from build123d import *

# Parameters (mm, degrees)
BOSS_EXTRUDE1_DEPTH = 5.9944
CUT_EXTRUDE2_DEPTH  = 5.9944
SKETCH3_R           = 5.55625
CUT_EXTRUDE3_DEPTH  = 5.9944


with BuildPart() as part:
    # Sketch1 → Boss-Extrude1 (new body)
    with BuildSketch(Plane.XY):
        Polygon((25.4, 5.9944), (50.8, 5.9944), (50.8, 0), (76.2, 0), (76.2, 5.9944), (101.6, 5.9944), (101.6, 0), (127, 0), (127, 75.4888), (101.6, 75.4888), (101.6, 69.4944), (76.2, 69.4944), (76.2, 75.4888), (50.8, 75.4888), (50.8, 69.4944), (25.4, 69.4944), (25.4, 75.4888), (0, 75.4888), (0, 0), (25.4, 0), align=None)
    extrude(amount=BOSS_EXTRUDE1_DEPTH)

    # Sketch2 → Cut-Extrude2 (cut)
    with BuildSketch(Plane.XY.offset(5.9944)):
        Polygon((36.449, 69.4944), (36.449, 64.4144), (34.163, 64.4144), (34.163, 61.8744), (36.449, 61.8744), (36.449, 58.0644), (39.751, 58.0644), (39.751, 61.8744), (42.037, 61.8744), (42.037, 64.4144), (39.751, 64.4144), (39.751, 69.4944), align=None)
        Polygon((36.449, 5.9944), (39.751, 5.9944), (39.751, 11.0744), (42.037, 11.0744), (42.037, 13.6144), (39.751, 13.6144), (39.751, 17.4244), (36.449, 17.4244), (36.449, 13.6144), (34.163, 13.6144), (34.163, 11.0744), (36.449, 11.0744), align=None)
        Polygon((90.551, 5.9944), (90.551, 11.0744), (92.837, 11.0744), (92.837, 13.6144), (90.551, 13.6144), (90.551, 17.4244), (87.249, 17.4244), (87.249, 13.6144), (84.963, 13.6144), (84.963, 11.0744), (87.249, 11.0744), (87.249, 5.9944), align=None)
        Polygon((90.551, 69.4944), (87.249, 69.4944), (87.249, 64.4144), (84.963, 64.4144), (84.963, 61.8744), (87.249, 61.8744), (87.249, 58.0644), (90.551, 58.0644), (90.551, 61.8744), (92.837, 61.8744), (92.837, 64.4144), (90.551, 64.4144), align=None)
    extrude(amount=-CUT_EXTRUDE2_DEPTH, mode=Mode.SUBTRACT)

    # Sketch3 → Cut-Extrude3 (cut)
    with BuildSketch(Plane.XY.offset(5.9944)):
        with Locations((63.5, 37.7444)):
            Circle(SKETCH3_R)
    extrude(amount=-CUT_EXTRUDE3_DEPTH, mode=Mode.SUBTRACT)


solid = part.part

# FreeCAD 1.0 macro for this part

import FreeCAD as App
import Part
import Sketcher

V = App.Vector
Q = App.Units.Quantity

doc = App.newDocument("Part")
params = doc.addObject("Spreadsheet::Sheet", "Params")
for row, (alias, value) in enumerate([
    ("sketch1_width", "1 in"),
    ("sketch1_height", "0.236 in"),
    ("pad1_length", "0.236 in"),
    ("sketch2_height", "0.2 in"),
    ("sketch2_height2", "0.1 in"),
    ("sketch2_width", "0.09 in"),
    ("sketch2_width2", "0.13 in"),
    ("sketch2_height3", "0.15 in"),
    ("pocket1_length", "0.236 in"),
    ("sketch3_diameter", "0.4375 in"),
    ("pocket2_length", "0.236 in"),
], start=1):
    params.set(f"A{row}", alias)
    params.set(f"B{row}", "=" + value)
    params.setAlias(f"B{row}", alias)

body = doc.addObject("PartDesign::Body", "Body")

sketch1 = doc.addObject("Sketcher::SketchObject", "Sketch")
body.addObject(sketch1)
sketch1.AttachmentSupport = (doc.XY_Plane, [""])
sketch1.MapMode = "FlatFace"
sketch1.addGeometry(Part.LineSegment(V(25, 6, 0), V(51, 6, 0)), False)
sketch1.addGeometry(Part.LineSegment(V(51, 6, 0), V(51, 0, 0)), False)
sketch1.addGeometry(Part.LineSegment(V(51, 0, 0), V(76, 0, 0)), False)
sketch1.addGeometry(Part.LineSegment(V(76, 0, 0), V(76, 6, 0)), False)
sketch1.addGeometry(Part.LineSegment(V(76, 6, 0), V(102, 6, 0)), False)
sketch1.addGeometry(Part.LineSegment(V(102, 6, 0), V(102, 0, 0)), False)
sketch1.addGeometry(Part.LineSegment(V(102, 0, 0), V(127, 0, 0)), False)
sketch1.addGeometry(Part.LineSegment(V(127, 0, 0), V(127, 75, 0)), False)
sketch1.addGeometry(Part.LineSegment(V(127, 75, 0), V(102, 75, 0)), False)
sketch1.addGeometry(Part.LineSegment(V(102, 75, 0), V(102, 69, 0)), False)
sketch1.addGeometry(Part.LineSegment(V(102, 69, 0), V(76, 69, 0)), False)
sketch1.addGeometry(Part.LineSegment(V(76, 69, 0), V(76, 75, 0)), False)
sketch1.addGeometry(Part.LineSegment(V(76, 75, 0), V(51, 75, 0)), False)
sketch1.addGeometry(Part.LineSegment(V(51, 75, 0), V(51, 69, 0)), False)
sketch1.addGeometry(Part.LineSegment(V(51, 69, 0), V(25, 69, 0)), False)
sketch1.addGeometry(Part.LineSegment(V(25, 69, 0), V(25, 75, 0)), False)
sketch1.addGeometry(Part.LineSegment(V(25, 75, 0), V(0, 75, 0)), False)
sketch1.addGeometry(Part.LineSegment(V(0, 75, 0), V(0, 0, 0)), False)
sketch1.addGeometry(Part.LineSegment(V(0, 0, 0), V(25, 0, 0)), False)
sketch1.addGeometry(Part.LineSegment(V(25, 0, 0), V(25, 6, 0)), False)
sketch1.addConstraint(Sketcher.Constraint("Coincident", 0, 2, 1, 1))
sketch1.addConstraint(Sketcher.Constraint("Coincident", 1, 2, 2, 1))
sketch1.addConstraint(Sketcher.Constraint("Coincident", 2, 2, 3, 1))
sketch1.addConstraint(Sketcher.Constraint("Coincident", 3, 2, 4, 1))
sketch1.addConstraint(Sketcher.Constraint("Coincident", 4, 2, 5, 1))
sketch1.addConstraint(Sketcher.Constraint("Coincident", 5, 2, 6, 1))
sketch1.addConstraint(Sketcher.Constraint("Coincident", 6, 2, 7, 1))
sketch1.addConstraint(Sketcher.Constraint("Coincident", 7, 2, 8, 1))
sketch1.addConstraint(Sketcher.Constraint("Coincident", 8, 2, 9, 1))
sketch1.addConstraint(Sketcher.Constraint("Coincident", 9, 2, 10, 1))
sketch1.addConstraint(Sketcher.Constraint("Coincident", 10, 2, 11, 1))
sketch1.addConstraint(Sketcher.Constraint("Coincident", 11, 2, 12, 1))
sketch1.addConstraint(Sketcher.Constraint("Coincident", 12, 2, 13, 1))
sketch1.addConstraint(Sketcher.Constraint("Coincident", 13, 2, 14, 1))
sketch1.addConstraint(Sketcher.Constraint("Coincident", 14, 2, 15, 1))
sketch1.addConstraint(Sketcher.Constraint("Coincident", 15, 2, 16, 1))
sketch1.addConstraint(Sketcher.Constraint("Coincident", 16, 2, 17, 1))
sketch1.addConstraint(Sketcher.Constraint("Coincident", 17, 2, 18, 1))
sketch1.addConstraint(Sketcher.Constraint("Coincident", 18, 2, 19, 1))
sketch1.addConstraint(Sketcher.Constraint("Coincident", 19, 2, 0, 1))
sketch1.addConstraint(Sketcher.Constraint("Horizontal", 0))
sketch1.addConstraint(Sketcher.Constraint("Vertical", 1))
sketch1.addConstraint(Sketcher.Constraint("Horizontal", 2))
sketch1.addConstraint(Sketcher.Constraint("Vertical", 3))
sketch1.addConstraint(Sketcher.Constraint("Horizontal", 4))
sketch1.addConstraint(Sketcher.Constraint("Vertical", 5))
sketch1.addConstraint(Sketcher.Constraint("Horizontal", 6))
sketch1.addConstraint(Sketcher.Constraint("Vertical", 7))
sketch1.addConstraint(Sketcher.Constraint("Horizontal", 8))
sketch1.addConstraint(Sketcher.Constraint("Vertical", 9))
sketch1.addConstraint(Sketcher.Constraint("Horizontal", 10))
sketch1.addConstraint(Sketcher.Constraint("Vertical", 11))
sketch1.addConstraint(Sketcher.Constraint("Horizontal", 12))
sketch1.addConstraint(Sketcher.Constraint("Vertical", 13))
sketch1.addConstraint(Sketcher.Constraint("Horizontal", 14))
sketch1.addConstraint(Sketcher.Constraint("Vertical", 15))
sketch1.addConstraint(Sketcher.Constraint("Horizontal", 16))
sketch1.addConstraint(Sketcher.Constraint("Vertical", 17))
sketch1.addConstraint(Sketcher.Constraint("Horizontal", 18))
sketch1.addConstraint(Sketcher.Constraint("Vertical", 19))
sketch1.addConstraint(Sketcher.Constraint("Coincident", 17, 2, -1, 1))
sketch1.addConstraint(Sketcher.Constraint("PointOnObject", 1, 2, -1))
sketch1.addConstraint(Sketcher.Constraint("PointOnObject", 5, 2, -1))
sketch1.addConstraint(Sketcher.Constraint("Horizontal", 0, 2, 3, 2))
sketch1.addConstraint(Sketcher.Constraint("Horizontal", 8, 2, 11, 2))
sketch1.addConstraint(Sketcher.Constraint("Horizontal", 10, 2, 13, 2))
sketch1.addConstraint(Sketcher.Constraint("Horizontal", 12, 2, 15, 2))
sketch1.addConstraint(Sketcher.Constraint("Vertical", 5, 2, 8, 2))
sketch1.addConstraint(Sketcher.Constraint("Vertical", 3, 2, 10, 2))
sketch1.addConstraint(Sketcher.Constraint("Vertical", 1, 2, 12, 2))
sketch1.addConstraint(Sketcher.Constraint("Vertical", 15, 2, 18, 2))
sketch1.addConstraint(Sketcher.Constraint("Equal", 0, 2))
sketch1.addConstraint(Sketcher.Constraint("Equal", 2, 4))
sketch1.addConstraint(Sketcher.Constraint("Equal", 4, 6))
sketch1.addConstraint(Sketcher.Constraint("Equal", 14, 16))
sketch1.addConstraint(Sketcher.Constraint("Equal", 5, 9))
sketch1.addConstraint(Sketcher.Constraint("DistanceX", 0, 1, 0, 2, Q("1 in")))
sketch1.addConstraint(Sketcher.Constraint("DistanceY", 4, 2, 9, 2, Q("2.5 in")))
sketch1.addConstraint(Sketcher.Constraint("DistanceY", 1, 2, 1, 1, Q("0.236 in")))
sketch1.setExpression("Constraints[56]", "Params.sketch1_width")
sketch1.setExpression("Constraints[58]", "Params.sketch1_height")
pad1 = doc.addObject("PartDesign::Pad", "Pad")
body.addObject(pad1)
pad1.Profile = sketch1
pad1.setExpression("Length", "Params.pad1_length")

sketch2 = doc.addObject("Sketcher::SketchObject", "Sketch001")
body.addObject(sketch2)
sketch2.AttachmentSupport = (doc.XY_Plane, [""])
sketch2.MapMode = "FlatFace"
sketch2.AttachmentOffset = App.Placement(V(0, 0, 0.236 * 25.4), App.Rotation())
sketch2.addGeometry(Part.LineSegment(V(36.4, 69.5, 0), V(36.4, 64.4, 0)), False)
sketch2.addGeometry(Part.LineSegment(V(36.4, 64.4, 0), V(34.2, 64.4, 0)), False)
sketch2.addGeometry(Part.LineSegment(V(34.2, 64.4, 0), V(34.2, 61.9, 0)), False)
sketch2.addGeometry(Part.LineSegment(V(34.2, 61.9, 0), V(36.4, 61.9, 0)), False)
sketch2.addGeometry(Part.LineSegment(V(36.4, 61.9, 0), V(36.4, 58.1, 0)), False)
sketch2.addGeometry(Part.LineSegment(V(36.4, 58.1, 0), V(39.8, 58.1, 0)), False)
sketch2.addGeometry(Part.LineSegment(V(39.8, 58.1, 0), V(39.8, 61.9, 0)), False)
sketch2.addGeometry(Part.LineSegment(V(39.8, 61.9, 0), V(42, 61.9, 0)), False)
sketch2.addGeometry(Part.LineSegment(V(42, 61.9, 0), V(42, 64.4, 0)), False)
sketch2.addGeometry(Part.LineSegment(V(42, 64.4, 0), V(39.8, 64.4, 0)), False)
sketch2.addGeometry(Part.LineSegment(V(39.8, 64.4, 0), V(39.8, 69.5, 0)), False)
sketch2.addGeometry(Part.LineSegment(V(39.8, 69.5, 0), V(36.4, 69.5, 0)), False)
sketch2.addGeometry(Part.LineSegment(V(36.4, 6, 0), V(39.8, 6, 0)), False)
sketch2.addGeometry(Part.LineSegment(V(39.8, 6, 0), V(39.8, 11.1, 0)), False)
sketch2.addGeometry(Part.LineSegment(V(39.8, 11.1, 0), V(42, 11.1, 0)), False)
sketch2.addGeometry(Part.LineSegment(V(42, 11.1, 0), V(42, 13.6, 0)), False)
sketch2.addGeometry(Part.LineSegment(V(42, 13.6, 0), V(39.8, 13.6, 0)), False)
sketch2.addGeometry(Part.LineSegment(V(39.8, 13.6, 0), V(39.8, 17.4, 0)), False)
sketch2.addGeometry(Part.LineSegment(V(39.8, 17.4, 0), V(36.4, 17.4, 0)), False)
sketch2.addGeometry(Part.LineSegment(V(36.4, 17.4, 0), V(36.4, 13.6, 0)), False)
sketch2.addGeometry(Part.LineSegment(V(36.4, 13.6, 0), V(34.2, 13.6, 0)), False)
sketch2.addGeometry(Part.LineSegment(V(34.2, 13.6, 0), V(34.2, 11.1, 0)), False)
sketch2.addGeometry(Part.LineSegment(V(34.2, 11.1, 0), V(36.4, 11.1, 0)), False)
sketch2.addGeometry(Part.LineSegment(V(36.4, 11.1, 0), V(36.4, 6, 0)), False)
sketch2.addGeometry(Part.LineSegment(V(90.6, 6, 0), V(90.6, 11.1, 0)), False)
sketch2.addGeometry(Part.LineSegment(V(90.6, 11.1, 0), V(92.8, 11.1, 0)), False)
sketch2.addGeometry(Part.LineSegment(V(92.8, 11.1, 0), V(92.8, 13.6, 0)), False)
sketch2.addGeometry(Part.LineSegment(V(92.8, 13.6, 0), V(90.6, 13.6, 0)), False)
sketch2.addGeometry(Part.LineSegment(V(90.6, 13.6, 0), V(90.6, 17.4, 0)), False)
sketch2.addGeometry(Part.LineSegment(V(90.6, 17.4, 0), V(87.2, 17.4, 0)), False)
sketch2.addGeometry(Part.LineSegment(V(87.2, 17.4, 0), V(87.2, 13.6, 0)), False)
sketch2.addGeometry(Part.LineSegment(V(87.2, 13.6, 0), V(85, 13.6, 0)), False)
sketch2.addGeometry(Part.LineSegment(V(85, 13.6, 0), V(85, 11.1, 0)), False)
sketch2.addGeometry(Part.LineSegment(V(85, 11.1, 0), V(87.2, 11.1, 0)), False)
sketch2.addGeometry(Part.LineSegment(V(87.2, 11.1, 0), V(87.2, 6, 0)), False)
sketch2.addGeometry(Part.LineSegment(V(87.2, 6, 0), V(90.6, 6, 0)), False)
sketch2.addGeometry(Part.LineSegment(V(90.6, 69.5, 0), V(87.2, 69.5, 0)), False)
sketch2.addGeometry(Part.LineSegment(V(87.2, 69.5, 0), V(87.2, 64.4, 0)), False)
sketch2.addGeometry(Part.LineSegment(V(87.2, 64.4, 0), V(85, 64.4, 0)), False)
sketch2.addGeometry(Part.LineSegment(V(85, 64.4, 0), V(85, 61.9, 0)), False)
sketch2.addGeometry(Part.LineSegment(V(85, 61.9, 0), V(87.2, 61.9, 0)), False)
sketch2.addGeometry(Part.LineSegment(V(87.2, 61.9, 0), V(87.2, 58.1, 0)), False)
sketch2.addGeometry(Part.LineSegment(V(87.2, 58.1, 0), V(90.6, 58.1, 0)), False)
sketch2.addGeometry(Part.LineSegment(V(90.6, 58.1, 0), V(90.6, 61.9, 0)), False)
sketch2.addGeometry(Part.LineSegment(V(90.6, 61.9, 0), V(92.8, 61.9, 0)), False)
sketch2.addGeometry(Part.LineSegment(V(92.8, 61.9, 0), V(92.8, 64.4, 0)), False)
sketch2.addGeometry(Part.LineSegment(V(92.8, 64.4, 0), V(90.6, 64.4, 0)), False)
sketch2.addGeometry(Part.LineSegment(V(90.6, 64.4, 0), V(90.6, 69.5, 0)), False)
sketch2.addConstraint(Sketcher.Constraint("Coincident", 0, 2, 1, 1))
sketch2.addConstraint(Sketcher.Constraint("Coincident", 1, 2, 2, 1))
sketch2.addConstraint(Sketcher.Constraint("Coincident", 2, 2, 3, 1))
sketch2.addConstraint(Sketcher.Constraint("Coincident", 3, 2, 4, 1))
sketch2.addConstraint(Sketcher.Constraint("Coincident", 4, 2, 5, 1))
sketch2.addConstraint(Sketcher.Constraint("Coincident", 5, 2, 6, 1))
sketch2.addConstraint(Sketcher.Constraint("Coincident", 6, 2, 7, 1))
sketch2.addConstraint(Sketcher.Constraint("Coincident", 7, 2, 8, 1))
sketch2.addConstraint(Sketcher.Constraint("Coincident", 8, 2, 9, 1))
sketch2.addConstraint(Sketcher.Constraint("Coincident", 9, 2, 10, 1))
sketch2.addConstraint(Sketcher.Constraint("Coincident", 10, 2, 11, 1))
sketch2.addConstraint(Sketcher.Constraint("Coincident", 11, 2, 0, 1))
sketch2.addConstraint(Sketcher.Constraint("Coincident", 12, 2, 13, 1))
sketch2.addConstraint(Sketcher.Constraint("Coincident", 13, 2, 14, 1))
sketch2.addConstraint(Sketcher.Constraint("Coincident", 14, 2, 15, 1))
sketch2.addConstraint(Sketcher.Constraint("Coincident", 15, 2, 16, 1))
sketch2.addConstraint(Sketcher.Constraint("Coincident", 16, 2, 17, 1))
sketch2.addConstraint(Sketcher.Constraint("Coincident", 17, 2, 18, 1))
sketch2.addConstraint(Sketcher.Constraint("Coincident", 18, 2, 19, 1))
sketch2.addConstraint(Sketcher.Constraint("Coincident", 19, 2, 20, 1))
sketch2.addConstraint(Sketcher.Constraint("Coincident", 20, 2, 21, 1))
sketch2.addConstraint(Sketcher.Constraint("Coincident", 21, 2, 22, 1))
sketch2.addConstraint(Sketcher.Constraint("Coincident", 22, 2, 23, 1))
sketch2.addConstraint(Sketcher.Constraint("Coincident", 23, 2, 12, 1))
sketch2.addConstraint(Sketcher.Constraint("Coincident", 24, 2, 25, 1))
sketch2.addConstraint(Sketcher.Constraint("Coincident", 25, 2, 26, 1))
sketch2.addConstraint(Sketcher.Constraint("Coincident", 26, 2, 27, 1))
sketch2.addConstraint(Sketcher.Constraint("Coincident", 27, 2, 28, 1))
sketch2.addConstraint(Sketcher.Constraint("Coincident", 28, 2, 29, 1))
sketch2.addConstraint(Sketcher.Constraint("Coincident", 29, 2, 30, 1))
sketch2.addConstraint(Sketcher.Constraint("Coincident", 30, 2, 31, 1))
sketch2.addConstraint(Sketcher.Constraint("Coincident", 31, 2, 32, 1))
sketch2.addConstraint(Sketcher.Constraint("Coincident", 32, 2, 33, 1))
sketch2.addConstraint(Sketcher.Constraint("Coincident", 33, 2, 34, 1))
sketch2.addConstraint(Sketcher.Constraint("Coincident", 34, 2, 35, 1))
sketch2.addConstraint(Sketcher.Constraint("Coincident", 35, 2, 24, 1))
sketch2.addConstraint(Sketcher.Constraint("Coincident", 36, 2, 37, 1))
sketch2.addConstraint(Sketcher.Constraint("Coincident", 37, 2, 38, 1))
sketch2.addConstraint(Sketcher.Constraint("Coincident", 38, 2, 39, 1))
sketch2.addConstraint(Sketcher.Constraint("Coincident", 39, 2, 40, 1))
sketch2.addConstraint(Sketcher.Constraint("Coincident", 40, 2, 41, 1))
sketch2.addConstraint(Sketcher.Constraint("Coincident", 41, 2, 42, 1))
sketch2.addConstraint(Sketcher.Constraint("Coincident", 42, 2, 43, 1))
sketch2.addConstraint(Sketcher.Constraint("Coincident", 43, 2, 44, 1))
sketch2.addConstraint(Sketcher.Constraint("Coincident", 44, 2, 45, 1))
sketch2.addConstraint(Sketcher.Constraint("Coincident", 45, 2, 46, 1))
sketch2.addConstraint(Sketcher.Constraint("Coincident", 46, 2, 47, 1))
sketch2.addConstraint(Sketcher.Constraint("Coincident", 47, 2, 36, 1))
sketch2.addConstraint(Sketcher.Constraint("Vertical", 0))
sketch2.addConstraint(Sketcher.Constraint("Horizontal", 1))
sketch2.addConstraint(Sketcher.Constraint("Vertical", 2))
sketch2.addConstraint(Sketcher.Constraint("Horizontal", 3))
sketch2.addConstraint(Sketcher.Constraint("Vertical", 4))
sketch2.addConstraint(Sketcher.Constraint("Horizontal", 5))
sketch2.addConstraint(Sketcher.Constraint("Vertical", 6))
sketch2.addConstraint(Sketcher.Constraint("Horizontal", 7))
sketch2.addConstraint(Sketcher.Constraint("Vertical", 8))
sketch2.addConstraint(Sketcher.Constraint("Horizontal", 9))
sketch2.addConstraint(Sketcher.Constraint("Vertical", 10))
sketch2.addConstraint(Sketcher.Constraint("Horizontal", 11))
sketch2.addConstraint(Sketcher.Constraint("Horizontal", 12))
sketch2.addConstraint(Sketcher.Constraint("Vertical", 13))
sketch2.addConstraint(Sketcher.Constraint("Horizontal", 14))
sketch2.addConstraint(Sketcher.Constraint("Vertical", 15))
sketch2.addConstraint(Sketcher.Constraint("Horizontal", 16))
sketch2.addConstraint(Sketcher.Constraint("Vertical", 17))
sketch2.addConstraint(Sketcher.Constraint("Horizontal", 18))
sketch2.addConstraint(Sketcher.Constraint("Vertical", 19))
sketch2.addConstraint(Sketcher.Constraint("Horizontal", 20))
sketch2.addConstraint(Sketcher.Constraint("Vertical", 21))
sketch2.addConstraint(Sketcher.Constraint("Horizontal", 22))
sketch2.addConstraint(Sketcher.Constraint("Vertical", 23))
sketch2.addConstraint(Sketcher.Constraint("Vertical", 24))
sketch2.addConstraint(Sketcher.Constraint("Horizontal", 25))
sketch2.addConstraint(Sketcher.Constraint("Vertical", 26))
sketch2.addConstraint(Sketcher.Constraint("Horizontal", 27))
sketch2.addConstraint(Sketcher.Constraint("Vertical", 28))
sketch2.addConstraint(Sketcher.Constraint("Horizontal", 29))
sketch2.addConstraint(Sketcher.Constraint("Vertical", 30))
sketch2.addConstraint(Sketcher.Constraint("Horizontal", 31))
sketch2.addConstraint(Sketcher.Constraint("Vertical", 32))
sketch2.addConstraint(Sketcher.Constraint("Horizontal", 33))
sketch2.addConstraint(Sketcher.Constraint("Vertical", 34))
sketch2.addConstraint(Sketcher.Constraint("Horizontal", 35))
sketch2.addConstraint(Sketcher.Constraint("Horizontal", 36))
sketch2.addConstraint(Sketcher.Constraint("Vertical", 37))
sketch2.addConstraint(Sketcher.Constraint("Horizontal", 38))
sketch2.addConstraint(Sketcher.Constraint("Vertical", 39))
sketch2.addConstraint(Sketcher.Constraint("Horizontal", 40))
sketch2.addConstraint(Sketcher.Constraint("Vertical", 41))
sketch2.addConstraint(Sketcher.Constraint("Horizontal", 42))
sketch2.addConstraint(Sketcher.Constraint("Vertical", 43))
sketch2.addConstraint(Sketcher.Constraint("Horizontal", 44))
sketch2.addConstraint(Sketcher.Constraint("Vertical", 45))
sketch2.addConstraint(Sketcher.Constraint("Horizontal", 46))
sketch2.addConstraint(Sketcher.Constraint("Vertical", 47))
sketch2.addConstraint(Sketcher.Constraint("Horizontal", 3, 2, 6, 2))
sketch2.addConstraint(Sketcher.Constraint("Horizontal", 1, 2, 8, 2))
sketch2.addConstraint(Sketcher.Constraint("Horizontal", 16, 2, 19, 2))
sketch2.addConstraint(Sketcher.Constraint("Horizontal", 14, 2, 21, 2))
sketch2.addConstraint(Sketcher.Constraint("Horizontal", 22, 2, 24, 2))
sketch2.addConstraint(Sketcher.Constraint("Horizontal", 20, 2, 26, 2))
sketch2.addConstraint(Sketcher.Constraint("Horizontal", 18, 2, 28, 2))
sketch2.addConstraint(Sketcher.Constraint("Horizontal", 27, 2, 30, 2))
sketch2.addConstraint(Sketcher.Constraint("Horizontal", 25, 2, 32, 2))
sketch2.addConstraint(Sketcher.Constraint("Horizontal", 23, 2, 34, 2))
sketch2.addConstraint(Sketcher.Constraint("Horizontal", 11, 2, 36, 2))
sketch2.addConstraint(Sketcher.Constraint("Horizontal", 9, 2, 37, 2))
sketch2.addConstraint(Sketcher.Constraint("Horizontal", 7, 2, 39, 2))
sketch2.addConstraint(Sketcher.Constraint("Horizontal", 5, 2, 41, 2))
sketch2.addConstraint(Sketcher.Constraint("Horizontal", 40, 2, 43, 2))
sketch2.addConstraint(Sketcher.Constraint("Horizontal", 38, 2, 45, 2))
sketch2.addConstraint(Sketcher.Constraint("Vertical", 0, 2, 3, 2))
sketch2.addConstraint(Sketcher.Constraint("Vertical", 6, 2, 9, 2))
sketch2.addConstraint(Sketcher.Constraint("Vertical", 10, 2, 12, 2))
sketch2.addConstraint(Sketcher.Constraint("Vertical", 8, 2, 14, 2))
sketch2.addConstraint(Sketcher.Constraint("Vertical", 13, 2, 16, 2))
sketch2.addConstraint(Sketcher.Constraint("Vertical", 11, 2, 18, 2))
sketch2.addConstraint(Sketcher.Constraint("Vertical", 2, 2, 20, 2))
sketch2.addConstraint(Sketcher.Constraint("Vertical", 19, 2, 22, 2))
sketch2.addConstraint(Sketcher.Constraint("Vertical", 24, 2, 27, 2))
sketch2.addConstraint(Sketcher.Constraint("Vertical", 30, 2, 33, 2))
sketch2.addConstraint(Sketcher.Constraint("Vertical", 34, 2, 36, 2))
sketch2.addConstraint(Sketcher.Constraint("Vertical", 32, 2, 38, 2))
sketch2.addConstraint(Sketcher.Constraint("Vertical", 37, 2, 40, 2))
sketch2.addConstraint(Sketcher.Constraint("Vertical", 35, 2, 42, 2))
sketch2.addConstraint(Sketcher.Constraint("Vertical", 26, 2, 44, 2))
sketch2.addConstraint(Sketcher.Constraint("Vertical", 43, 2, 46, 2))
sketch2.addConstraint(Sketcher.Constraint("Equal", 3, 7))
sketch2.addConstraint(Sketcher.Constraint("Equal", 22, 25))
sketch2.addConstraint(Sketcher.Constraint("Equal", 18, 29))
sketch2.addConstraint(Sketcher.Constraint("Equal", 27, 31))
sketch2.addConstraint(Sketcher.Constraint("Equal", 10, 13))
sketch2.addConstraint(Sketcher.Constraint("Equal", 8, 15))
sketch2.addConstraint(Sketcher.Constraint("Equal", 6, 17))
sketch2.addConstraint(Sketcher.Constraint("DistanceY", 0, 2, 0, 1, Q("0.2 in")))
sketch2.addConstraint(Sketcher.Constraint("DistanceY", 2, 2, 2, 1, Q("0.1 in")))
sketch2.addConstraint(Sketcher.Constraint("DistanceY", 13, 2, 6, 2, Q("2 in")))
sketch2.addConstraint(Sketcher.Constraint("DistanceX", 13, 2, 24, 2, Q("2 in")))
sketch2.addConstraint(Sketcher.Constraint("DistanceX", 1, 2, 1, 1, Q("0.09 in")))
sketch2.addConstraint(Sketcher.Constraint("DistanceX", 5, 1, 5, 2, Q("0.13 in")))
sketch2.addConstraint(Sketcher.Constraint("DistanceY", 4, 2, 4, 1, Q("0.15 in")))
sketch2.addConstraint(Sketcher.Constraint("DistanceX", -1, 1, 0, 2, Q("1.435 in")))
sketch2.addConstraint(Sketcher.Constraint("DistanceY", -1, 1, 0, 2, Q("2.536 in")))
sketch2.setExpression("Constraints[135]", "Params.sketch2_height")
sketch2.setExpression("Constraints[136]", "Params.sketch2_height2")
sketch2.setExpression("Constraints[139]", "Params.sketch2_width")
sketch2.setExpression("Constraints[140]", "Params.sketch2_width2")
sketch2.setExpression("Constraints[141]", "Params.sketch2_height3")
pocket1 = doc.addObject("PartDesign::Pocket", "Pocket")
body.addObject(pocket1)
pocket1.Profile = sketch2
pocket1.setExpression("Length", "Params.pocket1_length")

sketch3 = doc.addObject("Sketcher::SketchObject", "Sketch002")
body.addObject(sketch3)
sketch3.AttachmentSupport = (doc.XY_Plane, [""])
sketch3.MapMode = "FlatFace"
sketch3.AttachmentOffset = App.Placement(V(0, 0, 0.236 * 25.4), App.Rotation())
sketch3.addGeometry(Part.Circle(V(64, 38, 0), V(0, 0, 1), 6), False)
sketch3.addConstraint(Sketcher.Constraint("Diameter", 0, Q("0.4375 in")))
sketch3.addConstraint(Sketcher.Constraint("DistanceX", -1, 1, 0, 3, Q("2.5 in")))
sketch3.addConstraint(Sketcher.Constraint("DistanceY", -1, 1, 0, 3, Q("1.486 in")))
sketch3.setExpression("Constraints[0]", "Params.sketch3_diameter")
pocket2 = doc.addObject("PartDesign::Pocket", "Pocket001")
body.addObject(pocket2)
pocket2.Profile = sketch3
pocket2.setExpression("Length", "Params.pocket2_length")

doc.recompute()
